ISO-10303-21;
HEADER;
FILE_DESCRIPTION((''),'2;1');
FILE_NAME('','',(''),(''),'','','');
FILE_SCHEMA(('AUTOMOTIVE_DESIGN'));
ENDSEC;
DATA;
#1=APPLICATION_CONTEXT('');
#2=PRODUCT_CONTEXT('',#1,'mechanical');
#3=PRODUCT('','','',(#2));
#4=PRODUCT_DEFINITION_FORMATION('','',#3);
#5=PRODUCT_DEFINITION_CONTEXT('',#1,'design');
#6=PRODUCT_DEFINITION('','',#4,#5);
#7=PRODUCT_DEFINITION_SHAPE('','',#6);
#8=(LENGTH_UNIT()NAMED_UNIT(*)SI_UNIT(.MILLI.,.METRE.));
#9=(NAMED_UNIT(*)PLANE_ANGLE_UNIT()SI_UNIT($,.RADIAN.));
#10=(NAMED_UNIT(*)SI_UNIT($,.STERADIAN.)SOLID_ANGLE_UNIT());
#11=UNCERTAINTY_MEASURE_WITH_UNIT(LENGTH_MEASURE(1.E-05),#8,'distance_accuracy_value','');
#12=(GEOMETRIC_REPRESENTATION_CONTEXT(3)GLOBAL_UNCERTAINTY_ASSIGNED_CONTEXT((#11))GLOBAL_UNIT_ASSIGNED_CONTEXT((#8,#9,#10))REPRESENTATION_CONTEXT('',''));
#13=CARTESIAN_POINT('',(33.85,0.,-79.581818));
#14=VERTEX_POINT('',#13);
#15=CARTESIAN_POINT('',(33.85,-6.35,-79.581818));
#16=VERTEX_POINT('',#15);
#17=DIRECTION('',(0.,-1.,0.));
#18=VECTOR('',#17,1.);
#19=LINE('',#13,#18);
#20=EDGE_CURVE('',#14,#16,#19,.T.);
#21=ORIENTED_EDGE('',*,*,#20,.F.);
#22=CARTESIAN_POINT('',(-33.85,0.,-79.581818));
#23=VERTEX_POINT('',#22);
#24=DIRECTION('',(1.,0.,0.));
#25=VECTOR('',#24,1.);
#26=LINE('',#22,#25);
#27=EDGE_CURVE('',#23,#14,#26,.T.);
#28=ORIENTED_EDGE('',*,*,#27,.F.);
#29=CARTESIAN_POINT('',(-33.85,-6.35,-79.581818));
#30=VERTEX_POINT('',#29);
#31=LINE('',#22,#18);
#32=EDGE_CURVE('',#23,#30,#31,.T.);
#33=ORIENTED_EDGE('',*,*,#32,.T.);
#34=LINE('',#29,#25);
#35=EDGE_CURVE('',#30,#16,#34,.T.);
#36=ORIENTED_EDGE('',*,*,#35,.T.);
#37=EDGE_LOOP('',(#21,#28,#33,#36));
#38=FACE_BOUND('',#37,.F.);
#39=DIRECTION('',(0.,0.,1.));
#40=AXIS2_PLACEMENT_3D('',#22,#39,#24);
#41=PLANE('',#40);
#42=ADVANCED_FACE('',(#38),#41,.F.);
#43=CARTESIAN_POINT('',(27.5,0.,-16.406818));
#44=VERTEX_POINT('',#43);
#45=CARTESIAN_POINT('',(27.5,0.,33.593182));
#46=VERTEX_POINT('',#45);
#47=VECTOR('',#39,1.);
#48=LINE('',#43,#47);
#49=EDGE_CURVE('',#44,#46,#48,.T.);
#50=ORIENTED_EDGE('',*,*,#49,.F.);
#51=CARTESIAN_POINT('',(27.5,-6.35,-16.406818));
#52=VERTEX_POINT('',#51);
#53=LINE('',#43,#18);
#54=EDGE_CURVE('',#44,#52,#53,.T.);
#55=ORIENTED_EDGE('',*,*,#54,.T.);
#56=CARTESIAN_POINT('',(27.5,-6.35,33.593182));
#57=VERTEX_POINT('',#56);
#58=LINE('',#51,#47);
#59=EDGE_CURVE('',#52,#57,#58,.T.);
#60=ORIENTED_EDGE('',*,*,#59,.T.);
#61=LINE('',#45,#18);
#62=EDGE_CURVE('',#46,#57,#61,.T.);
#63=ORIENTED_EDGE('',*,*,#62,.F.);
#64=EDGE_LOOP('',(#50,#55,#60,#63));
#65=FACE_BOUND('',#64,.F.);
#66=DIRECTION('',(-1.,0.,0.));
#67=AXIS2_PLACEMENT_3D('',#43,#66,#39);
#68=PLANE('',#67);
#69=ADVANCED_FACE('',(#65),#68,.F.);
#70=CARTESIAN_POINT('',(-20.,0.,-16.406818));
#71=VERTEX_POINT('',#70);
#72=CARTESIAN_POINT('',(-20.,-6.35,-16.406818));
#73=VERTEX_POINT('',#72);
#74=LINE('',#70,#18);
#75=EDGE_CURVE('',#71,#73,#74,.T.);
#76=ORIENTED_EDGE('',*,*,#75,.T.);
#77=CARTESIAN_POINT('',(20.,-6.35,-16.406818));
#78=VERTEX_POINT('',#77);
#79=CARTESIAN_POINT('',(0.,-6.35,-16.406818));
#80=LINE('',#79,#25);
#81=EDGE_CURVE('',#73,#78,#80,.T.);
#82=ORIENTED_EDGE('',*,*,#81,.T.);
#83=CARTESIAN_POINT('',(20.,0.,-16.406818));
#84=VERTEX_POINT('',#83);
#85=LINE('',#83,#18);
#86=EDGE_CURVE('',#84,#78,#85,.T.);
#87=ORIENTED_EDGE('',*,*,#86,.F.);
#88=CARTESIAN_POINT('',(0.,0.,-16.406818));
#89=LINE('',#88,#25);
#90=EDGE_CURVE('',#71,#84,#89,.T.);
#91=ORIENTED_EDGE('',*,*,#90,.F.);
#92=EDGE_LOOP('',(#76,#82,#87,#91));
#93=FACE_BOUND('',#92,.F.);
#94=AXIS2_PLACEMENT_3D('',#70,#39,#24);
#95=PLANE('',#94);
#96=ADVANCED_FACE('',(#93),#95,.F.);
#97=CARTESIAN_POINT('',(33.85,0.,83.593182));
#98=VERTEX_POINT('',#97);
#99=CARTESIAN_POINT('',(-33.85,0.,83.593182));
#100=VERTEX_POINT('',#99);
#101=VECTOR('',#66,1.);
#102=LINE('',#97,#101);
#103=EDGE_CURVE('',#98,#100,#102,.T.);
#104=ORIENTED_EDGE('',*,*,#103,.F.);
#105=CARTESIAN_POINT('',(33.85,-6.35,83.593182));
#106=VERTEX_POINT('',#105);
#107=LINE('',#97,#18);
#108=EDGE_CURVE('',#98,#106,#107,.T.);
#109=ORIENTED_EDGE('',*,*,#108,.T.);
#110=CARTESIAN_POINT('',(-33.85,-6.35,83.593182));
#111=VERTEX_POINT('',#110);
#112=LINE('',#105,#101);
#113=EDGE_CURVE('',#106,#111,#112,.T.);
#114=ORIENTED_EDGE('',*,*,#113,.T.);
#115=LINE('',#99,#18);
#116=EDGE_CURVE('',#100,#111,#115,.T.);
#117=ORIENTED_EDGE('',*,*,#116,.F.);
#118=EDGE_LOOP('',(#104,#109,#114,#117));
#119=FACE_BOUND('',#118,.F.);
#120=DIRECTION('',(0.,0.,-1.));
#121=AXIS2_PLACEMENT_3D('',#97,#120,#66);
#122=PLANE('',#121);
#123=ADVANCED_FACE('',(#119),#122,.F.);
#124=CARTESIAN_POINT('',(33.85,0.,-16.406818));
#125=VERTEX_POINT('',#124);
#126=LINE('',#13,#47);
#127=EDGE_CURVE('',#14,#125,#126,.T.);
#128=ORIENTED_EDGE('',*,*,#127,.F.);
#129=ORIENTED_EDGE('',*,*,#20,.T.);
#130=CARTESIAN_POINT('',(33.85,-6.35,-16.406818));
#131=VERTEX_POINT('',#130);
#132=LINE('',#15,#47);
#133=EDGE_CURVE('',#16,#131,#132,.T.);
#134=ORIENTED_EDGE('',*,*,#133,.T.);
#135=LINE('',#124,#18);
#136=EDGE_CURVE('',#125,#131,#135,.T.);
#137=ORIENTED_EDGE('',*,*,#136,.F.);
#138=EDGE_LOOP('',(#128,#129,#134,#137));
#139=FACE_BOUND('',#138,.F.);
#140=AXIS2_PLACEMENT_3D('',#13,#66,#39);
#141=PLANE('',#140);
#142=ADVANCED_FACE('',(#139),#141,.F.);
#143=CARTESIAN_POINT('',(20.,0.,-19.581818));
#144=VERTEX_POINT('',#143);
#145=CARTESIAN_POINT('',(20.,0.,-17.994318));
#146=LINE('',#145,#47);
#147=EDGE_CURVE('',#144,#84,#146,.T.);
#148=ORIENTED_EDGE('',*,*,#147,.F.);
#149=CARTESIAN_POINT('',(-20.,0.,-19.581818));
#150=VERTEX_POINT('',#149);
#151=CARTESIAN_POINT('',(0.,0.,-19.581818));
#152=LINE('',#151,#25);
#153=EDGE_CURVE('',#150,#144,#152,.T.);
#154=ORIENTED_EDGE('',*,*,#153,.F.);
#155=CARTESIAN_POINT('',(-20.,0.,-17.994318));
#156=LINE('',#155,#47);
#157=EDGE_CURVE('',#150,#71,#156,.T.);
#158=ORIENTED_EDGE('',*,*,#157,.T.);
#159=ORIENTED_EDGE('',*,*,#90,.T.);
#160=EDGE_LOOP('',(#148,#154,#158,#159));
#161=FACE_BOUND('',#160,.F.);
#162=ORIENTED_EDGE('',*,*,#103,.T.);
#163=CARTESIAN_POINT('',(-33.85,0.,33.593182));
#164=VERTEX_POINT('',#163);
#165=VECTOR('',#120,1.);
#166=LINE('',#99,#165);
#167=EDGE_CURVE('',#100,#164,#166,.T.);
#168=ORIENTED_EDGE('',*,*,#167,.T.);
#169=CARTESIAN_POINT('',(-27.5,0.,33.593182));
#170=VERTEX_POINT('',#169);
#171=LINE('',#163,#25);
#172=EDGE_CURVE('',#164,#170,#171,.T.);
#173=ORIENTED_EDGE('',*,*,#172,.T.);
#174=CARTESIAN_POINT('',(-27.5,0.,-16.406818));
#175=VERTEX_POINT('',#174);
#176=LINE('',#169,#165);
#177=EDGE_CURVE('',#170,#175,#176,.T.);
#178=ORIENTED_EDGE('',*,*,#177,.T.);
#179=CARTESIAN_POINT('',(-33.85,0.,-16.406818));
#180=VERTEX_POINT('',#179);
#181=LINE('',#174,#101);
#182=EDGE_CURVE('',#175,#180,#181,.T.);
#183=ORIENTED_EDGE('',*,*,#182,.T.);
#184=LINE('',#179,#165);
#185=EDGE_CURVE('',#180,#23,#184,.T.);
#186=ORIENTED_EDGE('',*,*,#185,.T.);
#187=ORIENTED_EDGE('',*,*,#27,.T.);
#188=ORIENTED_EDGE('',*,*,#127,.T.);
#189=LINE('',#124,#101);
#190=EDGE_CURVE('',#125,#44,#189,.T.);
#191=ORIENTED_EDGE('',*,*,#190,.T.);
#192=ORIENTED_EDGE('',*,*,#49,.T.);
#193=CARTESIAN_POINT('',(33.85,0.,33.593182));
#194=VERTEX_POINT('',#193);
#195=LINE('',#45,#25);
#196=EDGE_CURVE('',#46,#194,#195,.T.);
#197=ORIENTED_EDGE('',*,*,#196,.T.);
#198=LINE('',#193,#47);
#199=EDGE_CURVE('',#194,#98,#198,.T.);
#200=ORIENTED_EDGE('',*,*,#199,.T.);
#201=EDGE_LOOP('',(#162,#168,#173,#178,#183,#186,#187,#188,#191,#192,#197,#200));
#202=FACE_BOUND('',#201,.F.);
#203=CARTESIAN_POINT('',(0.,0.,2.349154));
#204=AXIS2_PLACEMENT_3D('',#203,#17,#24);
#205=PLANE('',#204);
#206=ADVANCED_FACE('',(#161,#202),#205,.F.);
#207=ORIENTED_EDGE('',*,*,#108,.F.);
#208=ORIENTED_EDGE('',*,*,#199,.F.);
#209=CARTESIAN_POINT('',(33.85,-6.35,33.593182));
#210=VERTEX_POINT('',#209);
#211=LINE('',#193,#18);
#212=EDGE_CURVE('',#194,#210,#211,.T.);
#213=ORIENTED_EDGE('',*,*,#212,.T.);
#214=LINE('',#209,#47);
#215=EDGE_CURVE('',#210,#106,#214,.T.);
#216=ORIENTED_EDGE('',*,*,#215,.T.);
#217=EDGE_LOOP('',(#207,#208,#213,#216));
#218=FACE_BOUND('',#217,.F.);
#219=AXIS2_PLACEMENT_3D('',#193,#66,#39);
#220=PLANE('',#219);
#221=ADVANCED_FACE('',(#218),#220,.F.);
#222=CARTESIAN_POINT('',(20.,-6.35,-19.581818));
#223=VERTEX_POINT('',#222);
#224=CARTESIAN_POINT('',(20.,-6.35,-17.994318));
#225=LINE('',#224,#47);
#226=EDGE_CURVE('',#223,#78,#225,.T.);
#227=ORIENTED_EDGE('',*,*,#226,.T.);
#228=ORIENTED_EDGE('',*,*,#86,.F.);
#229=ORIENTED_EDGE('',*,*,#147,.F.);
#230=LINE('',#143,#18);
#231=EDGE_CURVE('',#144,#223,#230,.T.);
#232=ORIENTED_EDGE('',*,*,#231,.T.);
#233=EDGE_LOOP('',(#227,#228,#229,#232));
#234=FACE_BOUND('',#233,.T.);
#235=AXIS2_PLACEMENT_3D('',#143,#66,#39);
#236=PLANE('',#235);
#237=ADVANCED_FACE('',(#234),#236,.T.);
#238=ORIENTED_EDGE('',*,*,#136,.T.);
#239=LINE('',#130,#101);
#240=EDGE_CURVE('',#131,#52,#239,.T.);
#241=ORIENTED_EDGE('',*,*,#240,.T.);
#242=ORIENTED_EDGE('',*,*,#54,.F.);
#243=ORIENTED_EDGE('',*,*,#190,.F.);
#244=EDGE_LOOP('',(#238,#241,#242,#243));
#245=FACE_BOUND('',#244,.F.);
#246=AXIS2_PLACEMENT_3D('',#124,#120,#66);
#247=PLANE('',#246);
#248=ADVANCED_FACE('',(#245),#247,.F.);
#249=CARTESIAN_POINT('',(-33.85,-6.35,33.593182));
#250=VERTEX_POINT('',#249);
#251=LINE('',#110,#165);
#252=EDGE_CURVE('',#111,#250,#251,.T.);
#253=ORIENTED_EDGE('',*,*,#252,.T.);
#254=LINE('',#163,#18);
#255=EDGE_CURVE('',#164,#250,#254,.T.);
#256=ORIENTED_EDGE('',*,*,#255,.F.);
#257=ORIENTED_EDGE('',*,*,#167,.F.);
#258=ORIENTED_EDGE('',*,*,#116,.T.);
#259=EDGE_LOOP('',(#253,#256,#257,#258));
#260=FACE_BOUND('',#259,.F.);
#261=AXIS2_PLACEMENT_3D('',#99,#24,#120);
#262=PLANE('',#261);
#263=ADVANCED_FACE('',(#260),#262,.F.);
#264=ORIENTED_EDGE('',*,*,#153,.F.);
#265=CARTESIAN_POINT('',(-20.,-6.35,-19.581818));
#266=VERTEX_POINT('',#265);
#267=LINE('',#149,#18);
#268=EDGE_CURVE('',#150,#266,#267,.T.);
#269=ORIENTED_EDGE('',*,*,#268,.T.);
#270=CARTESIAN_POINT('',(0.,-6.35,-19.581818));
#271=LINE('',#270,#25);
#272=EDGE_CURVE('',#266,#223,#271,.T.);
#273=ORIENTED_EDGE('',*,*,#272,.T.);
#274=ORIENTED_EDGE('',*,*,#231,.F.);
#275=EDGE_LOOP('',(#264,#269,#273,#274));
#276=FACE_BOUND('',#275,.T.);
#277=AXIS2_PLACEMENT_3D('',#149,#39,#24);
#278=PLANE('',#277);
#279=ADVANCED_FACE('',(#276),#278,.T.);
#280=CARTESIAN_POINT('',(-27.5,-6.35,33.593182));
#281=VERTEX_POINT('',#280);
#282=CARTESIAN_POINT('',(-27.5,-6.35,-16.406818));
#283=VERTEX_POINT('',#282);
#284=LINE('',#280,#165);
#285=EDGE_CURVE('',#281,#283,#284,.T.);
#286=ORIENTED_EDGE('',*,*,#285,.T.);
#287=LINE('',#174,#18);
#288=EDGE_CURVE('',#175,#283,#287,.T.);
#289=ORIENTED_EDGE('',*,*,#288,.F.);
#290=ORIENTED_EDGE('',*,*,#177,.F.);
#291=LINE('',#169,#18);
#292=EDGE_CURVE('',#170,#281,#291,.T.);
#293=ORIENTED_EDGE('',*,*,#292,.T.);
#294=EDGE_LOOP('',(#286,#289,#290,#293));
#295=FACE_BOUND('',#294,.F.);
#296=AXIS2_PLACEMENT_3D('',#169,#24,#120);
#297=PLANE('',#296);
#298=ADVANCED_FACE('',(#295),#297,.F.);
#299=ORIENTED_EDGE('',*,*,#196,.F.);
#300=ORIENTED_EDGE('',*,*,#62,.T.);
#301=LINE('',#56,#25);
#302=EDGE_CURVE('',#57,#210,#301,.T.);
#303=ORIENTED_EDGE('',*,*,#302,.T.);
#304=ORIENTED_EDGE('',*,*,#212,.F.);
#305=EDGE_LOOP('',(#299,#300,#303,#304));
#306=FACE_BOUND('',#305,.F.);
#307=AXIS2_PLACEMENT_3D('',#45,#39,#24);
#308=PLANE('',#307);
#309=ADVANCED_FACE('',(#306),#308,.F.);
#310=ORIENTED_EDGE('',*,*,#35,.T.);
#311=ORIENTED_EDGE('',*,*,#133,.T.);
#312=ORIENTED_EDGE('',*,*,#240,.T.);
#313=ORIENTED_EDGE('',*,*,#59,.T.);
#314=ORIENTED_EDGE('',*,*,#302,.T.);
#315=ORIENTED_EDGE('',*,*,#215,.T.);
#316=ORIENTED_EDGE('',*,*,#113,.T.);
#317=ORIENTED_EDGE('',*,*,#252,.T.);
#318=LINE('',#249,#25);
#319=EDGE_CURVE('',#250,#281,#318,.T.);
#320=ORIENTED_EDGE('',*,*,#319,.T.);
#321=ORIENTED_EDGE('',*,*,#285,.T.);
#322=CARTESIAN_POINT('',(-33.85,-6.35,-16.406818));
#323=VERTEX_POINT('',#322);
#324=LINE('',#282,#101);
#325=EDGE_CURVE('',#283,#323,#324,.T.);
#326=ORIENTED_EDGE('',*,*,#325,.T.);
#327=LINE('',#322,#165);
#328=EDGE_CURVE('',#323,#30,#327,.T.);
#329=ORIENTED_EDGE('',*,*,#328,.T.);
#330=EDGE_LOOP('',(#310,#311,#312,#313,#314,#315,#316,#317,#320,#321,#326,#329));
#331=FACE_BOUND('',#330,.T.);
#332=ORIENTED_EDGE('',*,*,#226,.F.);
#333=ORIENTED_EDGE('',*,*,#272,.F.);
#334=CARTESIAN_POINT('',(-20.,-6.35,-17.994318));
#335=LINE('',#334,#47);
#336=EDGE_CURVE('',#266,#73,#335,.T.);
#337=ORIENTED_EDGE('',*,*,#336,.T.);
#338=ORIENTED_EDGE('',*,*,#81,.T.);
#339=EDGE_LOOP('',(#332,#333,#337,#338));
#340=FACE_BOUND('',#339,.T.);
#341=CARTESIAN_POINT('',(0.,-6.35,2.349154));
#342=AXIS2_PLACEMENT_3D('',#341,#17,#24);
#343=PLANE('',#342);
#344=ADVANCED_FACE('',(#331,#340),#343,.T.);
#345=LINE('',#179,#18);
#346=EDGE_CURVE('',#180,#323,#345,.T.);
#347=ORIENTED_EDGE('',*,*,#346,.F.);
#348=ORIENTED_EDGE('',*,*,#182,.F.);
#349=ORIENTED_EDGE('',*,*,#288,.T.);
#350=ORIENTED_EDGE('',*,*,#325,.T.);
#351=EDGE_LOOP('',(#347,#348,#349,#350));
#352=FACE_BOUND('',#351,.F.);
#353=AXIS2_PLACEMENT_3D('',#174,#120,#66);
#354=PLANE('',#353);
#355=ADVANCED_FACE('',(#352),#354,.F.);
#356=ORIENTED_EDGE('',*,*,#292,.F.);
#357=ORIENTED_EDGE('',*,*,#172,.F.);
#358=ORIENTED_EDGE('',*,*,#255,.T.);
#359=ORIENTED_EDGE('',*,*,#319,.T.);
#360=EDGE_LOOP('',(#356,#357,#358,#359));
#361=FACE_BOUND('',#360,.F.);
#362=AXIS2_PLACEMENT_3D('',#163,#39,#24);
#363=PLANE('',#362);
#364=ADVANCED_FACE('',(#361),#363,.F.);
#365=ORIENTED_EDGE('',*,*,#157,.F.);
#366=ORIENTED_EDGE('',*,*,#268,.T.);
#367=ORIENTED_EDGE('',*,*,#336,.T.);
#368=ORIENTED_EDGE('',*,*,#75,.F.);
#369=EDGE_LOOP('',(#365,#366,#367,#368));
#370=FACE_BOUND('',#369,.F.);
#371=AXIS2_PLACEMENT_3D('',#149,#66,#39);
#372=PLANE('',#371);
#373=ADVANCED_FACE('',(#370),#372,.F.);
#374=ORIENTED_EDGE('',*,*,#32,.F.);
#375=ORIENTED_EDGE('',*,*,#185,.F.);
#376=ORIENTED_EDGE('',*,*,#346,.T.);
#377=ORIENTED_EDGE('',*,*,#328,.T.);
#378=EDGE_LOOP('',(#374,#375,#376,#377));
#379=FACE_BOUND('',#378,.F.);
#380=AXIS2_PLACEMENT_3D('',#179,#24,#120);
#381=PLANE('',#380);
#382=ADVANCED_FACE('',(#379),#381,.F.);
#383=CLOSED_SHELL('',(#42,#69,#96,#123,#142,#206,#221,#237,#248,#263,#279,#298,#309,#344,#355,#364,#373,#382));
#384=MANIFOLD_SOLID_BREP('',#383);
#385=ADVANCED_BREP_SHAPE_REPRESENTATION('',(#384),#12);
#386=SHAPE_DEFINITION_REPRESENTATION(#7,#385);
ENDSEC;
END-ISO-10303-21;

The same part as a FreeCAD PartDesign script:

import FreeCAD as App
import Part
import Sketcher


def add_polygon(sketch, points):
    """Adds a closed chain of lines whose ends are joined by coincident constraints."""
    first, n = sketch.GeometryCount, len(points)
    for a, b in zip(points, points[1:] + points[:1]):
        sketch.addGeometry(Part.LineSegment(App.Vector(*a, 0), App.Vector(*b, 0)), False)
    for i in range(n):
        sketch.addConstraint(Sketcher.Constraint("Coincident", first + i, 2, first + (i + 1) % n, 1))

doc = App.newDocument("Part")
body = doc.addObject("PartDesign::Body", "Body")

sketch1 = body.newObject("Sketcher::SketchObject", "Sketch")
sketch1.AttachmentSupport = (doc.getObject("XZ_Plane"), [""])
sketch1.MapMode = "FlatFace"
add_polygon(sketch1, [(33.9, 83.6), (-33.9, 83.6), (-33.9, 33.6), (-27.5, 33.6), (-27.5, -16.4), (-33.9, -16.4), (-33.9, -79.6), (33.9, -79.6), (33.9, -16.4), (27.5, -16.4), (27.5, 33.6), (33.9, 33.6)])
add_polygon(sketch1, [(20, -19.6), (-20, -19.6), (-20, -16.4), (20, -16.4)])
sketch1.addConstraint([
    Sketcher.Constraint("Horizontal", 0),
    Sketcher.Constraint("Vertical", 1),
    Sketcher.Constraint("Horizontal", 2),
    Sketcher.Constraint("Vertical", 3),
    Sketcher.Constraint("Horizontal", 4),
    Sketcher.Constraint("Vertical", 5),
    Sketcher.Constraint("Horizontal", 6),
    Sketcher.Constraint("Vertical", 7),
    Sketcher.Constraint("Horizontal", 8),
    Sketcher.Constraint("Vertical", 9),
    Sketcher.Constraint("Horizontal", 10),
    Sketcher.Constraint("Vertical", 11),
    Sketcher.Constraint("Horizontal", 12),
    Sketcher.Constraint("Vertical", 13),
    Sketcher.Constraint("Horizontal", 14),
    Sketcher.Constraint("Vertical", 15),
    Sketcher.Constraint("Symmetric", 4, 2, 7, 2, -2),
    Sketcher.Constraint("Symmetric", 2, 2, 9, 2, -2),
    Sketcher.Constraint("Horizontal", 8, 2, 13, 2),
    Sketcher.Constraint("Vertical", 1, 2, 4, 2),
    Sketcher.Constraint("Vertical", 7, 2, 10, 2),
    Sketcher.Constraint("Equal", 1, 3),
    Sketcher.Constraint("DistanceX", 12, 2, 12, 1, 40.0),
    Sketcher.Constraint("DistanceY", 1, 2, 1, 1, 50.0),
    Sketcher.Constraint("DistanceX", 0, 2, 0, 1, 67.7),
    Sketcher.Constraint("DistanceX", 12, 2, -1, 1, 20.0),
    Sketcher.Constraint("DistanceX", 3, 2, 8, 2, 55.0),
    Sketcher.Constraint("DistanceY", 5, 2, 5, 1, 63.175),
    Sketcher.Constraint("DistanceY", 13, 1, 13, 2, 3.175),
    Sketcher.Constraint("DistanceY", -1, 1, 0, 2, 83.593182),
])
pad1 = body.newObject("PartDesign::Pad", "Pad")
pad1.Profile = sketch1
pad1.Length = 6.35

doc.recompute()
